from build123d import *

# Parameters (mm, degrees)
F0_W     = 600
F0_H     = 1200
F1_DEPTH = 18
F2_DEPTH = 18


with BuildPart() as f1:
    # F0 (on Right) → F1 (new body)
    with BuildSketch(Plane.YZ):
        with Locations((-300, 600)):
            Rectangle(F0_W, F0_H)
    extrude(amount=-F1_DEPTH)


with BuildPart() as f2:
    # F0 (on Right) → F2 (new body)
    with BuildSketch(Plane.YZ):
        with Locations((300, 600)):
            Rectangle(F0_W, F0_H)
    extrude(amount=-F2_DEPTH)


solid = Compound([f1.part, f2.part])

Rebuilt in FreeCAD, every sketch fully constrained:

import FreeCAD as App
import Part
import Sketcher

V = App.Vector

doc = App.newDocument("Part")
params = doc.addObject("Spreadsheet::Sheet", "Params")
for row, (alias, value) in enumerate([
    ("sketch1_width", "600 mm"),
    ("sketch1_height", "1200 mm"),
    ("pad1_length", "18 mm"),
    ("sketch2_width", "600 mm"),
    ("sketch2_height", "1200 mm"),
    ("pad2_length", "18 mm"),
], start=1):
    params.set(f"A{row}", alias)
    params.set(f"B{row}", "=" + value)
    params.setAlias(f"B{row}", alias)

body = doc.addObject("PartDesign::Body", "Body")

# Sketch on YZ plane
sketch1 = body.newObject("Sketcher::SketchObject", "Sketch")
sketch1.AttachmentSupport = (doc.getObject("YZ_Plane"), [""])
sketch1.MapMode = "FlatFace"
sketch1.addGeometry([
    Part.LineSegment(V(-600, 1200, 0), V(-600, 0, 0)),
    Part.LineSegment(V(-600, 0, 0), V(0, 0, 0)),
    Part.LineSegment(V(0, 0, 0), V(0, 1200, 0)),
    Part.LineSegment(V(0, 1200, 0), V(-600, 1200, 0)),
], False)
sketch1.addConstraint([
    Sketcher.Constraint("Coincident", 0, 2, 1, 1),
    Sketcher.Constraint("Coincident", 1, 2, 2, 1),
    Sketcher.Constraint("Coincident", 2, 2, 3, 1),
    Sketcher.Constraint("Coincident", 3, 2, 0, 1),
    Sketcher.Constraint("Vertical", 0),
    Sketcher.Constraint("Horizontal", 1),
    Sketcher.Constraint("Vertical", 2),
    Sketcher.Constraint("Horizontal", 3),
    Sketcher.Constraint("Coincident", 1, 2, -1, 1),
    Sketcher.Constraint("DistanceX", 1, 1, 1, 2, 600.0),
    Sketcher.Constraint("DistanceY", 0, 2, 0, 1, 1200.0),
])
sketch1.setExpression("Constraints[9]", "Params.sketch1_width")
sketch1.setExpression("Constraints[10]", "Params.sketch1_height")
pad1 = body.newObject("PartDesign::Pad", "Pad")
pad1.Profile = sketch1
pad1.setExpression("Length", "Params.pad1_length")
pad1.Reversed = True
body2 = doc.addObject("PartDesign::Body", "Body001")

# Sketch on YZ plane
sketch2 = body2.newObject("Sketcher::SketchObject", "Sketch001")
sketch2.AttachmentSupport = (doc.getObject("YZ_Plane001"), [""])
sketch2.MapMode = "FlatFace"
sketch2.addGeometry([
    Part.LineSegment(V(0, 1200, 0), V(0, 0, 0)),
    Part.LineSegment(V(0, 0, 0), V(600, 0, 0)),
    Part.LineSegment(V(600, 0, 0), V(600, 1200, 0)),
    Part.LineSegment(V(600, 1200, 0), V(0, 1200, 0)),
], False)
sketch2.addConstraint([
    Sketcher.Constraint("Coincident", 0, 2, 1, 1),
    Sketcher.Constraint("Coincident", 1, 2, 2, 1),
    Sketcher.Constraint("Coincident", 2, 2, 3, 1),
    Sketcher.Constraint("Coincident", 3, 2, 0, 1),
    Sketcher.Constraint("Vertical", 0),
    Sketcher.Constraint("Horizontal", 1),
    Sketcher.Constraint("Vertical", 2),
    Sketcher.Constraint("Horizontal", 3),
    Sketcher.Constraint("Coincident", 0, 2, -1, 1),
    Sketcher.Constraint("DistanceX", 1, 1, 1, 2, 600.0),
    Sketcher.Constraint("DistanceY", 0, 2, 0, 1, 1200.0),
])
sketch2.setExpression("Constraints[9]", "Params.sketch2_width")
sketch2.setExpression("Constraints[10]", "Params.sketch2_height")
pad2 = body2.newObject("PartDesign::Pad", "Pad001")
pad2.Profile = sketch2
pad2.setExpression("Length", "Params.pad2_length")
pad2.Reversed = True

doc.recompute()
